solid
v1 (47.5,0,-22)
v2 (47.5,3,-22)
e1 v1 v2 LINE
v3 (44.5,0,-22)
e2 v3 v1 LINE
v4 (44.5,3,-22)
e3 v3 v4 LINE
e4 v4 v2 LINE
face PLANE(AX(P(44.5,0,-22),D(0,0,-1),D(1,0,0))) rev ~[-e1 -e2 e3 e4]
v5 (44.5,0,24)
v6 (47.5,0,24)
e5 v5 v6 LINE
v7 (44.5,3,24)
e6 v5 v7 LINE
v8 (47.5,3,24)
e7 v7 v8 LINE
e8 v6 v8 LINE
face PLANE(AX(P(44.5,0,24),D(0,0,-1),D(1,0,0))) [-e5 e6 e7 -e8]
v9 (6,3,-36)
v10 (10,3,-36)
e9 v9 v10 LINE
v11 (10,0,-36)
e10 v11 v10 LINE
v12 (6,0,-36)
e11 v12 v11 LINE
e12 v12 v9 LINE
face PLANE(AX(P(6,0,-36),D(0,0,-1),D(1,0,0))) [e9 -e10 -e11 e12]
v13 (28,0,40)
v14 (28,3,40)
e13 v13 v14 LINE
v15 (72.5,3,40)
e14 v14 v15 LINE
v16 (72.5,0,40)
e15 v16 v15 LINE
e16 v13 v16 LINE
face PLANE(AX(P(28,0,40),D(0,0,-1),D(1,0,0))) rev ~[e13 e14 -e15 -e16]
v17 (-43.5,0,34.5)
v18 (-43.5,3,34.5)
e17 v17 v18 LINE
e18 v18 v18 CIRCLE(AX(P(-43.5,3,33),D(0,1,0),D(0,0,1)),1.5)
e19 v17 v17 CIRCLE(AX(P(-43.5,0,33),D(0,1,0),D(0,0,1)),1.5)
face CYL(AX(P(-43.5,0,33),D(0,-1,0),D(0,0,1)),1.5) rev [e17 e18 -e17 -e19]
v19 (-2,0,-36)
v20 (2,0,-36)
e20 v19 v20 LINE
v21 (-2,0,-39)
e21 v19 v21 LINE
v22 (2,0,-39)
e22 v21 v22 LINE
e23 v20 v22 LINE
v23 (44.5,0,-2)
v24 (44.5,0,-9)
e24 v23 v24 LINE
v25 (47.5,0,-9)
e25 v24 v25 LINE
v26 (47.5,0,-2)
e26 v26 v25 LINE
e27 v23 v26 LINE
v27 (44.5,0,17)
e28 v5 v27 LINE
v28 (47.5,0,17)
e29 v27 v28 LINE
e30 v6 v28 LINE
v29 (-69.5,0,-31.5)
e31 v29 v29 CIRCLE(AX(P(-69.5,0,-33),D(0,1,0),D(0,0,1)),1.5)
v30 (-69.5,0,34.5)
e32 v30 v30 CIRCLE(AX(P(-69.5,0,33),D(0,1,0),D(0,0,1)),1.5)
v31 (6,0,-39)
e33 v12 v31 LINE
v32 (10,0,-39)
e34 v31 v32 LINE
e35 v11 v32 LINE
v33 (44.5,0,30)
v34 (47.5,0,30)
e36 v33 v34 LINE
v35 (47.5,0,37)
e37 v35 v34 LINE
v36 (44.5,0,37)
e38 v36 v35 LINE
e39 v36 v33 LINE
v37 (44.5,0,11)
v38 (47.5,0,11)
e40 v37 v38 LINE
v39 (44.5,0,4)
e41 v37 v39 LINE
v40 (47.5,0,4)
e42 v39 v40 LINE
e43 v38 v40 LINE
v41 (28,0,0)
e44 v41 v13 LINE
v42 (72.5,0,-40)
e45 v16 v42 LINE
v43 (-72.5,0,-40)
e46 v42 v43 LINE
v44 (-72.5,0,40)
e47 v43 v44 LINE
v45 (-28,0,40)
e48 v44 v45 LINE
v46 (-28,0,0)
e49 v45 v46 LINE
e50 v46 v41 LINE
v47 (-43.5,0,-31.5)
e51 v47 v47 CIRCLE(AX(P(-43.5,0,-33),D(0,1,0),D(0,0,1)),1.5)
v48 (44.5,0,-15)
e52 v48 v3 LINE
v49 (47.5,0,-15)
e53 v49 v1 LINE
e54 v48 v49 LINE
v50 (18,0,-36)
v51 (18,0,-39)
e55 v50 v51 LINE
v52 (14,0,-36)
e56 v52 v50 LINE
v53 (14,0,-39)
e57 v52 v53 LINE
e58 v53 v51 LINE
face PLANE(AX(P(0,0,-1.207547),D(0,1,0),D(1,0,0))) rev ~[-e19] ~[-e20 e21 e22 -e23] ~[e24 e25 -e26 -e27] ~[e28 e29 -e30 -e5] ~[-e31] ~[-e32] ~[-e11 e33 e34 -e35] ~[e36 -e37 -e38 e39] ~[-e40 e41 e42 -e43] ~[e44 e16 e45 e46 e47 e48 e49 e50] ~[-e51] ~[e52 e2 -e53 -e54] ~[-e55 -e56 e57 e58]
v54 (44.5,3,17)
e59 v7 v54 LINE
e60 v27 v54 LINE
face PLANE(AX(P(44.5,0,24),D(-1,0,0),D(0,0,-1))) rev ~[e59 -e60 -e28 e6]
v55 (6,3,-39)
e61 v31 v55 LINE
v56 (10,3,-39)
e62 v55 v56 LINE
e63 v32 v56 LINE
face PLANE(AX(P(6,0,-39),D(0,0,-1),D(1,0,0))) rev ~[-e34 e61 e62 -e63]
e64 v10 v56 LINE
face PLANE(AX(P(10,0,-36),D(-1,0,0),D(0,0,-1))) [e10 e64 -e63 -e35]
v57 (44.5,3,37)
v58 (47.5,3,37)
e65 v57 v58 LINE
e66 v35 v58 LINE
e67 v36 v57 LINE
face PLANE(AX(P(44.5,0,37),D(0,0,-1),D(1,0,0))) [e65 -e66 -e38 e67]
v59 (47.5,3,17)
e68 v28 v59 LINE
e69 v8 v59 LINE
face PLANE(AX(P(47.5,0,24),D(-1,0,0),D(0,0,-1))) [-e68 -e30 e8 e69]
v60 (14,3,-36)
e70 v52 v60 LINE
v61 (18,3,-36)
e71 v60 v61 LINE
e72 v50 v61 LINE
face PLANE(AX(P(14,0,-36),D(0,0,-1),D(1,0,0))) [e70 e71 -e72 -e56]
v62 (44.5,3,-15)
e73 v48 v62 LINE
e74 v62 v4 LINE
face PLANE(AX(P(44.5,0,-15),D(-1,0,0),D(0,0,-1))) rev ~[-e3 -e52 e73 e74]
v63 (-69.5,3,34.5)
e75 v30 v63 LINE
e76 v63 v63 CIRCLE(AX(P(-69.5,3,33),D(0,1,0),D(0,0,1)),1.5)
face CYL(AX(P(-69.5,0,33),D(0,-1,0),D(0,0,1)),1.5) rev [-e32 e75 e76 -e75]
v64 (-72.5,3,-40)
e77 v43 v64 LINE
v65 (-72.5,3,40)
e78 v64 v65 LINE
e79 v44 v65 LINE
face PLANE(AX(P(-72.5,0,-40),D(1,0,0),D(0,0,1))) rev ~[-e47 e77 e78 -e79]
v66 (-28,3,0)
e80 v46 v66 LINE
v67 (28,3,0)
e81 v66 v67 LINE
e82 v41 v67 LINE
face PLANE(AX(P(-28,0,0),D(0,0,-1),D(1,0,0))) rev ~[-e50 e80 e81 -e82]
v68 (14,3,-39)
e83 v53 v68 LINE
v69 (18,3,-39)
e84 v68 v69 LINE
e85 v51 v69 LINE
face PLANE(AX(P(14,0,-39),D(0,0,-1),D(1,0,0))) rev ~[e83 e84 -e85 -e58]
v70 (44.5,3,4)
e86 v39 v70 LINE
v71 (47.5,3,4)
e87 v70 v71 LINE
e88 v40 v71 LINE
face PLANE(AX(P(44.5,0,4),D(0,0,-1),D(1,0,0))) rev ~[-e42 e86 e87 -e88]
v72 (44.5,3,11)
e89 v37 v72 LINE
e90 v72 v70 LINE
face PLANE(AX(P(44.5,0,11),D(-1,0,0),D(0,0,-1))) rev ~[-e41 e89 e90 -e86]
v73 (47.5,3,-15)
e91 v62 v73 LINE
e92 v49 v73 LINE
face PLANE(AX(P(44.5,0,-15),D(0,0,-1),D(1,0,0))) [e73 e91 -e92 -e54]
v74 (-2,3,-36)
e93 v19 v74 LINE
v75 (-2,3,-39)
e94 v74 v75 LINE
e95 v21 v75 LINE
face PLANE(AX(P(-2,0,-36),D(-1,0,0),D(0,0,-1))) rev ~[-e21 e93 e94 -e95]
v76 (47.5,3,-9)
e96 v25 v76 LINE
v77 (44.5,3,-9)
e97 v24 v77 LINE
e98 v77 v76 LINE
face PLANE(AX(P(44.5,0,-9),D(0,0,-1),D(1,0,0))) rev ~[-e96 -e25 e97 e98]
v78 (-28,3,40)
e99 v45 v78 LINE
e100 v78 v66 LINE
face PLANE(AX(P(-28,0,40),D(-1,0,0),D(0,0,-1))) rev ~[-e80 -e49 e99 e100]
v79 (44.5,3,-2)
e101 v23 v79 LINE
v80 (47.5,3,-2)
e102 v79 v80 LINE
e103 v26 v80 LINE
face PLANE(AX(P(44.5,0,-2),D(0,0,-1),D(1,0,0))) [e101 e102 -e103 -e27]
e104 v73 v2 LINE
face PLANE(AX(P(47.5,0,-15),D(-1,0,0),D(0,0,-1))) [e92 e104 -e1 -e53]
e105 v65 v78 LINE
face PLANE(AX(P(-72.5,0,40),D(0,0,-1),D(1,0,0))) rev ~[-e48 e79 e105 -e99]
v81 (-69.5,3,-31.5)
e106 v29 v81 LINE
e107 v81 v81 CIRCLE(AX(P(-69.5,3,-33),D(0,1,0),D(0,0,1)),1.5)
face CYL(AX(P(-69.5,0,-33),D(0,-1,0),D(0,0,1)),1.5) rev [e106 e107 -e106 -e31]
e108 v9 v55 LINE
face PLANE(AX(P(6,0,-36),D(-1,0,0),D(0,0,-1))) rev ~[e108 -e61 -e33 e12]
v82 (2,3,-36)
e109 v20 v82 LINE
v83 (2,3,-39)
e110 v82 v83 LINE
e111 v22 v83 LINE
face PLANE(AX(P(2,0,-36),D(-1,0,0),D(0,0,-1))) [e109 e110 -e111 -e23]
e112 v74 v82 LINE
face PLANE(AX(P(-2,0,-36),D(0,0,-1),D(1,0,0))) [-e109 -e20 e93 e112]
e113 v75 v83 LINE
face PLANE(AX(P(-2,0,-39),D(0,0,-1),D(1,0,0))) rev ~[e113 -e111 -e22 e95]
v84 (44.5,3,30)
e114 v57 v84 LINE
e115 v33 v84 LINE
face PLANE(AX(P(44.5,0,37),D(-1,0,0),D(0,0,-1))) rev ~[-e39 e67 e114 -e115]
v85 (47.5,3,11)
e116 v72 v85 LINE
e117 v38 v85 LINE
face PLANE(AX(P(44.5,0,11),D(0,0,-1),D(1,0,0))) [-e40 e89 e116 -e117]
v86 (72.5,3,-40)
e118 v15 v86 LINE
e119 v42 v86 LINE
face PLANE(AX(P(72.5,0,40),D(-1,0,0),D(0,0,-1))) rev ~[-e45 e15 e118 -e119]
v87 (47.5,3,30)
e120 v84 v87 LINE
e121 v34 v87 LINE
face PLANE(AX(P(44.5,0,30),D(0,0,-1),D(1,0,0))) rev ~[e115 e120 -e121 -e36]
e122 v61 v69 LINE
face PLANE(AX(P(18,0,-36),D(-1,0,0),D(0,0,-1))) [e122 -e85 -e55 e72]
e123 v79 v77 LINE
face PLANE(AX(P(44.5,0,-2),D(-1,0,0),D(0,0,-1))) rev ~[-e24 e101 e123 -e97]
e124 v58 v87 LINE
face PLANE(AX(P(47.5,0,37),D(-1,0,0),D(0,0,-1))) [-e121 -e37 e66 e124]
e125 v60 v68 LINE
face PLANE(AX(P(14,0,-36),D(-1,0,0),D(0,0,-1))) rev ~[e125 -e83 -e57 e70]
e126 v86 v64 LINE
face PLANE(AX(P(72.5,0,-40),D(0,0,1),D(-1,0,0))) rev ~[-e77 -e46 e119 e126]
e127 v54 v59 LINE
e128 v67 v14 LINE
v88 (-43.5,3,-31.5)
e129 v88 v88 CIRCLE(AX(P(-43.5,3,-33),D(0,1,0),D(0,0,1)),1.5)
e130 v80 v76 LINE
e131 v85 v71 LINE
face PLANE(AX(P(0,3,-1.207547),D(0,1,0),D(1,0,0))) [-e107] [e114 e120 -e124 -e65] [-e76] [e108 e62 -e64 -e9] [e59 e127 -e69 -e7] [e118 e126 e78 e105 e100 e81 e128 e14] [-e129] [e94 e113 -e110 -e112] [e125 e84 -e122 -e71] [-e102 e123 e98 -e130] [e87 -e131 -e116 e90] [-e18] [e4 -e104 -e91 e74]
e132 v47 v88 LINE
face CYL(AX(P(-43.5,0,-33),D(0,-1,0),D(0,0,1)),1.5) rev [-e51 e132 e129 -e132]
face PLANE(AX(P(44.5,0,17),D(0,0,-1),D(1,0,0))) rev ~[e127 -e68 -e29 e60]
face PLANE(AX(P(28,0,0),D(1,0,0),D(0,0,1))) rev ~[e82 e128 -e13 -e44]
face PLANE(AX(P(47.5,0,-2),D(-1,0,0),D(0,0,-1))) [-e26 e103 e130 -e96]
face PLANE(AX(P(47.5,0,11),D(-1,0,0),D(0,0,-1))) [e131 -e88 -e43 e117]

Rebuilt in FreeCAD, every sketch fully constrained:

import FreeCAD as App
import Part
import Sketcher

V = App.Vector
Q = App.Units.Quantity

doc = App.newDocument("Part")
params = doc.addObject("Spreadsheet::Sheet", "Params")
for row, (alias, value) in enumerate([
    ("sketch1_diameter", "3 mm"),
    ("sketch1_width", "56 mm"),
    ("sketch1_width2", "145 mm"),
    ("sketch1_width3", "3 mm"),
    ("sketch1_width4", "4 mm"),
    ("pad1_length", "3 mm"),
], start=1):
    params.set(f"A{row}", alias)
    params.set(f"B{row}", "=" + value)
    params.setAlias(f"B{row}", alias)

body = doc.addObject("PartDesign::Body", "Body")

# Sketch on XZ plane
sketch1 = body.newObject("Sketcher::SketchObject", "Sketch")
sketch1.AttachmentSupport = (doc.getObject("XZ_Plane"), [""])
sketch1.MapMode = "FlatFace"
sketch1.addGeometry(Part.LineSegment(V(-72.5, 40, 0), V(-28, 40, 0)), False)
sketch1.addGeometry(Part.LineSegment(V(-28, 40, 0), V(-28, 0, 0)), False)
sketch1.addGeometry(Part.LineSegment(V(-28, 0, 0), V(28, 0, 0)), False)
sketch1.addGeometry(Part.LineSegment(V(28, 0, 0), V(28, 40, 0)), False)
sketch1.addGeometry(Part.LineSegment(V(28, 40, 0), V(72.5, 40, 0)), False)
sketch1.addGeometry(Part.LineSegment(V(72.5, 40, 0), V(72.5, -40, 0)), False)
sketch1.addGeometry(Part.LineSegment(V(72.5, -40, 0), V(-72.5, -40, 0)), False)
sketch1.addGeometry(Part.LineSegment(V(-72.5, -40, 0), V(-72.5, 40, 0)), False)
sketch1.addGeometry(Part.Circle(V(-69.5, 33, 0), V(0, 0, 1), 1.5), False)
sketch1.addGeometry(Part.Circle(V(-43.5, 33, 0), V(0, 0, 1), 1.5), False)
sketch1.addGeometry(Part.LineSegment(V(47.5, 37, 0), V(44.5, 37, 0)), False)
sketch1.addGeometry(Part.LineSegment(V(44.5, 37, 0), V(44.5, 30, 0)), False)
sketch1.addGeometry(Part.LineSegment(V(44.5, 30, 0), V(47.5, 30, 0)), False)
sketch1.addGeometry(Part.LineSegment(V(47.5, 30, 0), V(47.5, 37, 0)), False)
sketch1.addGeometry(Part.LineSegment(V(47.5, 24, 0), V(44.5, 24, 0)), False)
sketch1.addGeometry(Part.LineSegment(V(44.5, 24, 0), V(44.5, 17, 0)), False)
sketch1.addGeometry(Part.LineSegment(V(44.5, 17, 0), V(47.5, 17, 0)), False)
sketch1.addGeometry(Part.LineSegment(V(47.5, 17, 0), V(47.5, 24, 0)), False)
sketch1.addGeometry(Part.LineSegment(V(47.5, 11, 0), V(44.5, 11, 0)), False)
sketch1.addGeometry(Part.LineSegment(V(44.5, 11, 0), V(44.5, 4, 0)), False)
sketch1.addGeometry(Part.LineSegment(V(44.5, 4, 0), V(47.5, 4, 0)), False)
sketch1.addGeometry(Part.LineSegment(V(47.5, 4, 0), V(47.5, 11, 0)), False)
sketch1.addGeometry(Part.Circle(V(-69.5, -33, 0), V(0, 0, 1), 1.5), False)
sketch1.addGeometry(Part.Circle(V(-43.5, -33, 0), V(0, 0, 1), 1.5), False)
sketch1.addGeometry(Part.LineSegment(V(47.5, -2, 0), V(44.5, -2, 0)), False)
sketch1.addGeometry(Part.LineSegment(V(44.5, -2, 0), V(44.5, -9, 0)), False)
sketch1.addGeometry(Part.LineSegment(V(44.5, -9, 0), V(47.5, -9, 0)), False)
sketch1.addGeometry(Part.LineSegment(V(47.5, -9, 0), V(47.5, -2, 0)), False)
sketch1.addGeometry(Part.LineSegment(V(47.5, -15, 0), V(44.5, -15, 0)), False)
sketch1.addGeometry(Part.LineSegment(V(44.5, -15, 0), V(44.5, -22, 0)), False)
sketch1.addGeometry(Part.LineSegment(V(44.5, -22, 0), V(47.5, -22, 0)), False)
sketch1.addGeometry(Part.LineSegment(V(47.5, -22, 0), V(47.5, -15, 0)), False)
sketch1.addGeometry(Part.LineSegment(V(2, -36, 0), V(-2, -36, 0)), False)
sketch1.addGeometry(Part.LineSegment(V(-2, -36, 0), V(-2, -39, 0)), False)
sketch1.addGeometry(Part.LineSegment(V(-2, -39, 0), V(2, -39, 0)), False)
sketch1.addGeometry(Part.LineSegment(V(2, -39, 0), V(2, -36, 0)), False)
sketch1.addGeometry(Part.LineSegment(V(10, -36, 0), V(6, -36, 0)), False)
sketch1.addGeometry(Part.LineSegment(V(6, -36, 0), V(6, -39, 0)), False)
sketch1.addGeometry(Part.LineSegment(V(6, -39, 0), V(10, -39, 0)), False)
sketch1.addGeometry(Part.LineSegment(V(10, -39, 0), V(10, -36, 0)), False)
sketch1.addGeometry(Part.LineSegment(V(18, -36, 0), V(14, -36, 0)), False)
sketch1.addGeometry(Part.LineSegment(V(14, -36, 0), V(14, -39, 0)), False)
sketch1.addGeometry(Part.LineSegment(V(14, -39, 0), V(18, -39, 0)), False)
sketch1.addGeometry(Part.LineSegment(V(18, -39, 0), V(18, -36, 0)), False)
sketch1.addConstraint(Sketcher.Constraint("Coincident", 0, 2, 1, 1))
sketch1.addConstraint(Sketcher.Constraint("Coincident", 1, 2, 2, 1))
sketch1.addConstraint(Sketcher.Constraint("Coincident", 2, 2, 3, 1))
sketch1.addConstraint(Sketcher.Constraint("Coincident", 3, 2, 4, 1))
sketch1.addConstraint(Sketcher.Constraint("Coincident", 4, 2, 5, 1))
sketch1.addConstraint(Sketcher.Constraint("Coincident", 5, 2, 6, 1))
sketch1.addConstraint(Sketcher.Constraint("Coincident", 6, 2, 7, 1))
sketch1.addConstraint(Sketcher.Constraint("Coincident", 7, 2, 0, 1))
sketch1.addConstraint(Sketcher.Constraint("Coincident", 10, 2, 11, 1))
sketch1.addConstraint(Sketcher.Constraint("Coincident", 11, 2, 12, 1))
sketch1.addConstraint(Sketcher.Constraint("Coincident", 12, 2, 13, 1))
sketch1.addConstraint(Sketcher.Constraint("Coincident", 13, 2, 10, 1))
sketch1.addConstraint(Sketcher.Constraint("Coincident", 14, 2, 15, 1))
sketch1.addConstraint(Sketcher.Constraint("Coincident", 15, 2, 16, 1))
sketch1.addConstraint(Sketcher.Constraint("Coincident", 16, 2, 17, 1))
sketch1.addConstraint(Sketcher.Constraint("Coincident", 17, 2, 14, 1))
sketch1.addConstraint(Sketcher.Constraint("Coincident", 18, 2, 19, 1))
sketch1.addConstraint(Sketcher.Constraint("Coincident", 19, 2, 20, 1))
sketch1.addConstraint(Sketcher.Constraint("Coincident", 20, 2, 21, 1))
sketch1.addConstraint(Sketcher.Constraint("Coincident", 21, 2, 18, 1))
sketch1.addConstraint(Sketcher.Constraint("Coincident", 24, 2, 25, 1))
sketch1.addConstraint(Sketcher.Constraint("Coincident", 25, 2, 26, 1))
sketch1.addConstraint(Sketcher.Constraint("Coincident", 26, 2, 27, 1))
sketch1.addConstraint(Sketcher.Constraint("Coincident", 27, 2, 24, 1))
sketch1.addConstraint(Sketcher.Constraint("Coincident", 28, 2, 29, 1))
sketch1.addConstraint(Sketcher.Constraint("Coincident", 29, 2, 30, 1))
sketch1.addConstraint(Sketcher.Constraint("Coincident", 30, 2, 31, 1))
sketch1.addConstraint(Sketcher.Constraint("Coincident", 31, 2, 28, 1))
sketch1.addConstraint(Sketcher.Constraint("Coincident", 32, 2, 33, 1))
sketch1.addConstraint(Sketcher.Constraint("Coincident", 33, 2, 34, 1))
sketch1.addConstraint(Sketcher.Constraint("Coincident", 34, 2, 35, 1))
sketch1.addConstraint(Sketcher.Constraint("Coincident", 35, 2, 32, 1))
sketch1.addConstraint(Sketcher.Constraint("Coincident", 36, 2, 37, 1))
sketch1.addConstraint(Sketcher.Constraint("Coincident", 37, 2, 38, 1))
sketch1.addConstraint(Sketcher.Constraint("Coincident", 38, 2, 39, 1))
sketch1.addConstraint(Sketcher.Constraint("Coincident", 39, 2, 36, 1))
sketch1.addConstraint(Sketcher.Constraint("Coincident", 40, 2, 41, 1))
sketch1.addConstraint(Sketcher.Constraint("Coincident", 41, 2, 42, 1))
sketch1.addConstraint(Sketcher.Constraint("Coincident", 42, 2, 43, 1))
sketch1.addConstraint(Sketcher.Constraint("Coincident", 43, 2, 40, 1))
sketch1.addConstraint(Sketcher.Constraint("Horizontal", 0))
sketch1.addConstraint(Sketcher.Constraint("Vertical", 1))
sketch1.addConstraint(Sketcher.Constraint("Horizontal", 2))
sketch1.addConstraint(Sketcher.Constraint("Vertical", 3))
sketch1.addConstraint(Sketcher.Constraint("Horizontal", 4))
sketch1.addConstraint(Sketcher.Constraint("Vertical", 5))
sketch1.addConstraint(Sketcher.Constraint("Horizontal", 6))
sketch1.addConstraint(Sketcher.Constraint("Vertical", 7))
sketch1.addConstraint(Sketcher.Constraint("Horizontal", 10))
sketch1.addConstraint(Sketcher.Constraint("Vertical", 11))
sketch1.addConstraint(Sketcher.Constraint("Horizontal", 12))
sketch1.addConstraint(Sketcher.Constraint("Vertical", 13))
sketch1.addConstraint(Sketcher.Constraint("Horizontal", 14))
sketch1.addConstraint(Sketcher.Constraint("Vertical", 15))
sketch1.addConstraint(Sketcher.Constraint("Horizontal", 16))
sketch1.addConstraint(Sketcher.Constraint("Vertical", 17))
sketch1.addConstraint(Sketcher.Constraint("Horizontal", 18))
sketch1.addConstraint(Sketcher.Constraint("Vertical", 19))
sketch1.addConstraint(Sketcher.Constraint("Horizontal", 20))
sketch1.addConstraint(Sketcher.Constraint("Vertical", 21))
sketch1.addConstraint(Sketcher.Constraint("Horizontal", 24))
sketch1.addConstraint(Sketcher.Constraint("Vertical", 25))
sketch1.addConstraint(Sketcher.Constraint("Horizontal", 26))
sketch1.addConstraint(Sketcher.Constraint("Vertical", 27))
sketch1.addConstraint(Sketcher.Constraint("Horizontal", 28))
sketch1.addConstraint(Sketcher.Constraint("Vertical", 29))
sketch1.addConstraint(Sketcher.Constraint("Horizontal", 30))
sketch1.addConstraint(Sketcher.Constraint("Vertical", 31))
sketch1.addConstraint(Sketcher.Constraint("Horizontal", 32))
sketch1.addConstraint(Sketcher.Constraint("Vertical", 33))
sketch1.addConstraint(Sketcher.Constraint("Horizontal", 34))
sketch1.addConstraint(Sketcher.Constraint("Vertical", 35))
sketch1.addConstraint(Sketcher.Constraint("Horizontal", 36))
sketch1.addConstraint(Sketcher.Constraint("Vertical", 37))
sketch1.addConstraint(Sketcher.Constraint("Horizontal", 38))
sketch1.addConstraint(Sketcher.Constraint("Vertical", 39))
sketch1.addConstraint(Sketcher.Constraint("Horizontal", 40))
sketch1.addConstraint(Sketcher.Constraint("Vertical", 41))
sketch1.addConstraint(Sketcher.Constraint("Horizontal", 42))
sketch1.addConstraint(Sketcher.Constraint("Vertical", 43))
sketch1.addConstraint(Sketcher.Constraint("Equal", 8, 9))
sketch1.addConstraint(Sketcher.Constraint("Equal", 9, 22))
sketch1.addConstraint(Sketcher.Constraint("Equal", 22, 23))
sketch1.addConstraint(Sketcher.Constraint("Symmetric", 1, 2, 2, 2, -1, 1))
sketch1.addConstraint(Sketcher.Constraint("Symmetric", 4, 2, 6, 2, -1, 1))
sketch1.addConstraint(Sketcher.Constraint("Symmetric", 8, 3, 22, 3, -1))
sketch1.addConstraint(Sketcher.Constraint("Symmetric", 9, 3, 23, 3, -1))
sketch1.addConstraint(Sketcher.Constraint("Horizontal", 8, 3, 9, 3))
sketch1.addConstraint(Sketcher.Constraint("Horizontal", 0, 2, 3, 2))
sketch1.addConstraint(Sketcher.Constraint("Horizontal", 35, 2, 36, 2))
sketch1.addConstraint(Sketcher.Constraint("Horizontal", 34, 2, 37, 2))
sketch1.addConstraint(Sketcher.Constraint("Horizontal", 39, 2, 40, 2))
sketch1.addConstraint(Sketcher.Constraint("Horizontal", 38, 2, 41, 2))
sketch1.addConstraint(Sketcher.Constraint("Vertical", 11, 2, 14, 2))
sketch1.addConstraint(Sketcher.Constraint("Vertical", 13, 2, 16, 2))
sketch1.addConstraint(Sketcher.Constraint("Vertical", 15, 2, 18, 2))
sketch1.addConstraint(Sketcher.Constraint("Vertical", 17, 2, 20, 2))
sketch1.addConstraint(Sketcher.Constraint("Vertical", 19, 2, 24, 2))
sketch1.addConstraint(Sketcher.Constraint("Vertical", 21, 2, 26, 2))
sketch1.addConstraint(Sketcher.Constraint("Vertical", 25, 2, 28, 2))
sketch1.addConstraint(Sketcher.Constraint("Vertical", 27, 2, 30, 2))
sketch1.addConstraint(Sketcher.Constraint("Equal", 34, 36))
sketch1.addConstraint(Sketcher.Constraint("Equal", 38, 40))
sketch1.addConstraint(Sketcher.Constraint("Equal", 13, 15))
sketch1.addConstraint(Sketcher.Constraint("Equal", 17, 19))
sketch1.addConstraint(Sketcher.Constraint("Equal", 21, 25))
sketch1.addConstraint(Sketcher.Constraint("Equal", 27, 29))
sketch1.addConstraint(Sketcher.Constraint("Equal", 30, 33))
sketch1.addConstraint(Sketcher.Constraint("Diameter", 8, Q("3 mm")))
sketch1.addConstraint(Sketcher.Constraint("DistanceX", 2, 1, 2, 2, Q("56 mm")))
sketch1.addConstraint(Sketcher.Constraint("DistanceX", 6, 2, 6, 1, Q("145 mm")))
sketch1.addConstraint(Sketcher.Constraint("DistanceX", 10, 2, 10, 1, Q("3 mm")))
sketch1.addConstraint(Sketcher.Constraint("DistanceX", 32, 2, 32, 1, Q("4 mm")))
sketch1.addConstraint(Sketcher.Constraint("DistanceY", 1, 2, 1, 1, Q("40 mm")))
sketch1.addConstraint(Sketcher.Constraint("DistanceY", 11, 2, 11, 1, Q("7 mm")))
sketch1.addConstraint(Sketcher.Constraint("DistanceY", -1, 1, 8, 3, Q("33 mm")))
sketch1.addConstraint(Sketcher.Constraint("DistanceY", -1, 1, 10, 2, Q("37 mm")))
sketch1.addConstraint(Sketcher.Constraint("DistanceY", -1, 1, 14, 2, Q("24 mm")))
sketch1.addConstraint(Sketcher.Constraint("DistanceY", -1, 1, 18, 2, Q("11 mm")))
sketch1.addConstraint(Sketcher.Constraint("DistanceY", 24, 2, -1, 1, Q("2 mm")))
sketch1.addConstraint(Sketcher.Constraint("DistanceY", 28, 2, -1, 1, Q("15 mm")))
sketch1.addConstraint(Sketcher.Constraint("DistanceX", 32, 2, -1, 1, Q("2 mm")))
sketch1.addConstraint(Sketcher.Constraint("DistanceY", 32, 2, -1, 1, Q("36 mm")))
sketch1.addConstraint(Sketcher.Constraint("DistanceX", -1, 1, 36, 2, Q("6 mm")))
sketch1.addConstraint(Sketcher.Constraint("DistanceX", -1, 1, 40, 2, Q("14 mm")))
sketch1.addConstraint(Sketcher.Constraint("DistanceX", 8, 3, 9, 3, Q("26 mm")))
sketch1.addConstraint(Sketcher.Constraint("DistanceX", 9, 3, 4, 2, Q("116 mm")))
sketch1.addConstraint(Sketcher.Constraint("DistanceX", 10, 2, 4, 2, Q("28 mm")))
sketch1.setExpression("Constraints[108]", "Params.sketch1_diameter")
sketch1.setExpression("Constraints[109]", "Params.sketch1_width")
sketch1.setExpression("Constraints[110]", "Params.sketch1_width2")
sketch1.setExpression("Constraints[111]", "Params.sketch1_width3")
sketch1.setExpression("Constraints[112]", "Params.sketch1_width4")
pad1 = body.newObject("PartDesign::Pad", "Pad")
pad1.Profile = sketch1
pad1.setExpression("Length", "Params.pad1_length")
pad1.Reversed = True

doc.recompute()
